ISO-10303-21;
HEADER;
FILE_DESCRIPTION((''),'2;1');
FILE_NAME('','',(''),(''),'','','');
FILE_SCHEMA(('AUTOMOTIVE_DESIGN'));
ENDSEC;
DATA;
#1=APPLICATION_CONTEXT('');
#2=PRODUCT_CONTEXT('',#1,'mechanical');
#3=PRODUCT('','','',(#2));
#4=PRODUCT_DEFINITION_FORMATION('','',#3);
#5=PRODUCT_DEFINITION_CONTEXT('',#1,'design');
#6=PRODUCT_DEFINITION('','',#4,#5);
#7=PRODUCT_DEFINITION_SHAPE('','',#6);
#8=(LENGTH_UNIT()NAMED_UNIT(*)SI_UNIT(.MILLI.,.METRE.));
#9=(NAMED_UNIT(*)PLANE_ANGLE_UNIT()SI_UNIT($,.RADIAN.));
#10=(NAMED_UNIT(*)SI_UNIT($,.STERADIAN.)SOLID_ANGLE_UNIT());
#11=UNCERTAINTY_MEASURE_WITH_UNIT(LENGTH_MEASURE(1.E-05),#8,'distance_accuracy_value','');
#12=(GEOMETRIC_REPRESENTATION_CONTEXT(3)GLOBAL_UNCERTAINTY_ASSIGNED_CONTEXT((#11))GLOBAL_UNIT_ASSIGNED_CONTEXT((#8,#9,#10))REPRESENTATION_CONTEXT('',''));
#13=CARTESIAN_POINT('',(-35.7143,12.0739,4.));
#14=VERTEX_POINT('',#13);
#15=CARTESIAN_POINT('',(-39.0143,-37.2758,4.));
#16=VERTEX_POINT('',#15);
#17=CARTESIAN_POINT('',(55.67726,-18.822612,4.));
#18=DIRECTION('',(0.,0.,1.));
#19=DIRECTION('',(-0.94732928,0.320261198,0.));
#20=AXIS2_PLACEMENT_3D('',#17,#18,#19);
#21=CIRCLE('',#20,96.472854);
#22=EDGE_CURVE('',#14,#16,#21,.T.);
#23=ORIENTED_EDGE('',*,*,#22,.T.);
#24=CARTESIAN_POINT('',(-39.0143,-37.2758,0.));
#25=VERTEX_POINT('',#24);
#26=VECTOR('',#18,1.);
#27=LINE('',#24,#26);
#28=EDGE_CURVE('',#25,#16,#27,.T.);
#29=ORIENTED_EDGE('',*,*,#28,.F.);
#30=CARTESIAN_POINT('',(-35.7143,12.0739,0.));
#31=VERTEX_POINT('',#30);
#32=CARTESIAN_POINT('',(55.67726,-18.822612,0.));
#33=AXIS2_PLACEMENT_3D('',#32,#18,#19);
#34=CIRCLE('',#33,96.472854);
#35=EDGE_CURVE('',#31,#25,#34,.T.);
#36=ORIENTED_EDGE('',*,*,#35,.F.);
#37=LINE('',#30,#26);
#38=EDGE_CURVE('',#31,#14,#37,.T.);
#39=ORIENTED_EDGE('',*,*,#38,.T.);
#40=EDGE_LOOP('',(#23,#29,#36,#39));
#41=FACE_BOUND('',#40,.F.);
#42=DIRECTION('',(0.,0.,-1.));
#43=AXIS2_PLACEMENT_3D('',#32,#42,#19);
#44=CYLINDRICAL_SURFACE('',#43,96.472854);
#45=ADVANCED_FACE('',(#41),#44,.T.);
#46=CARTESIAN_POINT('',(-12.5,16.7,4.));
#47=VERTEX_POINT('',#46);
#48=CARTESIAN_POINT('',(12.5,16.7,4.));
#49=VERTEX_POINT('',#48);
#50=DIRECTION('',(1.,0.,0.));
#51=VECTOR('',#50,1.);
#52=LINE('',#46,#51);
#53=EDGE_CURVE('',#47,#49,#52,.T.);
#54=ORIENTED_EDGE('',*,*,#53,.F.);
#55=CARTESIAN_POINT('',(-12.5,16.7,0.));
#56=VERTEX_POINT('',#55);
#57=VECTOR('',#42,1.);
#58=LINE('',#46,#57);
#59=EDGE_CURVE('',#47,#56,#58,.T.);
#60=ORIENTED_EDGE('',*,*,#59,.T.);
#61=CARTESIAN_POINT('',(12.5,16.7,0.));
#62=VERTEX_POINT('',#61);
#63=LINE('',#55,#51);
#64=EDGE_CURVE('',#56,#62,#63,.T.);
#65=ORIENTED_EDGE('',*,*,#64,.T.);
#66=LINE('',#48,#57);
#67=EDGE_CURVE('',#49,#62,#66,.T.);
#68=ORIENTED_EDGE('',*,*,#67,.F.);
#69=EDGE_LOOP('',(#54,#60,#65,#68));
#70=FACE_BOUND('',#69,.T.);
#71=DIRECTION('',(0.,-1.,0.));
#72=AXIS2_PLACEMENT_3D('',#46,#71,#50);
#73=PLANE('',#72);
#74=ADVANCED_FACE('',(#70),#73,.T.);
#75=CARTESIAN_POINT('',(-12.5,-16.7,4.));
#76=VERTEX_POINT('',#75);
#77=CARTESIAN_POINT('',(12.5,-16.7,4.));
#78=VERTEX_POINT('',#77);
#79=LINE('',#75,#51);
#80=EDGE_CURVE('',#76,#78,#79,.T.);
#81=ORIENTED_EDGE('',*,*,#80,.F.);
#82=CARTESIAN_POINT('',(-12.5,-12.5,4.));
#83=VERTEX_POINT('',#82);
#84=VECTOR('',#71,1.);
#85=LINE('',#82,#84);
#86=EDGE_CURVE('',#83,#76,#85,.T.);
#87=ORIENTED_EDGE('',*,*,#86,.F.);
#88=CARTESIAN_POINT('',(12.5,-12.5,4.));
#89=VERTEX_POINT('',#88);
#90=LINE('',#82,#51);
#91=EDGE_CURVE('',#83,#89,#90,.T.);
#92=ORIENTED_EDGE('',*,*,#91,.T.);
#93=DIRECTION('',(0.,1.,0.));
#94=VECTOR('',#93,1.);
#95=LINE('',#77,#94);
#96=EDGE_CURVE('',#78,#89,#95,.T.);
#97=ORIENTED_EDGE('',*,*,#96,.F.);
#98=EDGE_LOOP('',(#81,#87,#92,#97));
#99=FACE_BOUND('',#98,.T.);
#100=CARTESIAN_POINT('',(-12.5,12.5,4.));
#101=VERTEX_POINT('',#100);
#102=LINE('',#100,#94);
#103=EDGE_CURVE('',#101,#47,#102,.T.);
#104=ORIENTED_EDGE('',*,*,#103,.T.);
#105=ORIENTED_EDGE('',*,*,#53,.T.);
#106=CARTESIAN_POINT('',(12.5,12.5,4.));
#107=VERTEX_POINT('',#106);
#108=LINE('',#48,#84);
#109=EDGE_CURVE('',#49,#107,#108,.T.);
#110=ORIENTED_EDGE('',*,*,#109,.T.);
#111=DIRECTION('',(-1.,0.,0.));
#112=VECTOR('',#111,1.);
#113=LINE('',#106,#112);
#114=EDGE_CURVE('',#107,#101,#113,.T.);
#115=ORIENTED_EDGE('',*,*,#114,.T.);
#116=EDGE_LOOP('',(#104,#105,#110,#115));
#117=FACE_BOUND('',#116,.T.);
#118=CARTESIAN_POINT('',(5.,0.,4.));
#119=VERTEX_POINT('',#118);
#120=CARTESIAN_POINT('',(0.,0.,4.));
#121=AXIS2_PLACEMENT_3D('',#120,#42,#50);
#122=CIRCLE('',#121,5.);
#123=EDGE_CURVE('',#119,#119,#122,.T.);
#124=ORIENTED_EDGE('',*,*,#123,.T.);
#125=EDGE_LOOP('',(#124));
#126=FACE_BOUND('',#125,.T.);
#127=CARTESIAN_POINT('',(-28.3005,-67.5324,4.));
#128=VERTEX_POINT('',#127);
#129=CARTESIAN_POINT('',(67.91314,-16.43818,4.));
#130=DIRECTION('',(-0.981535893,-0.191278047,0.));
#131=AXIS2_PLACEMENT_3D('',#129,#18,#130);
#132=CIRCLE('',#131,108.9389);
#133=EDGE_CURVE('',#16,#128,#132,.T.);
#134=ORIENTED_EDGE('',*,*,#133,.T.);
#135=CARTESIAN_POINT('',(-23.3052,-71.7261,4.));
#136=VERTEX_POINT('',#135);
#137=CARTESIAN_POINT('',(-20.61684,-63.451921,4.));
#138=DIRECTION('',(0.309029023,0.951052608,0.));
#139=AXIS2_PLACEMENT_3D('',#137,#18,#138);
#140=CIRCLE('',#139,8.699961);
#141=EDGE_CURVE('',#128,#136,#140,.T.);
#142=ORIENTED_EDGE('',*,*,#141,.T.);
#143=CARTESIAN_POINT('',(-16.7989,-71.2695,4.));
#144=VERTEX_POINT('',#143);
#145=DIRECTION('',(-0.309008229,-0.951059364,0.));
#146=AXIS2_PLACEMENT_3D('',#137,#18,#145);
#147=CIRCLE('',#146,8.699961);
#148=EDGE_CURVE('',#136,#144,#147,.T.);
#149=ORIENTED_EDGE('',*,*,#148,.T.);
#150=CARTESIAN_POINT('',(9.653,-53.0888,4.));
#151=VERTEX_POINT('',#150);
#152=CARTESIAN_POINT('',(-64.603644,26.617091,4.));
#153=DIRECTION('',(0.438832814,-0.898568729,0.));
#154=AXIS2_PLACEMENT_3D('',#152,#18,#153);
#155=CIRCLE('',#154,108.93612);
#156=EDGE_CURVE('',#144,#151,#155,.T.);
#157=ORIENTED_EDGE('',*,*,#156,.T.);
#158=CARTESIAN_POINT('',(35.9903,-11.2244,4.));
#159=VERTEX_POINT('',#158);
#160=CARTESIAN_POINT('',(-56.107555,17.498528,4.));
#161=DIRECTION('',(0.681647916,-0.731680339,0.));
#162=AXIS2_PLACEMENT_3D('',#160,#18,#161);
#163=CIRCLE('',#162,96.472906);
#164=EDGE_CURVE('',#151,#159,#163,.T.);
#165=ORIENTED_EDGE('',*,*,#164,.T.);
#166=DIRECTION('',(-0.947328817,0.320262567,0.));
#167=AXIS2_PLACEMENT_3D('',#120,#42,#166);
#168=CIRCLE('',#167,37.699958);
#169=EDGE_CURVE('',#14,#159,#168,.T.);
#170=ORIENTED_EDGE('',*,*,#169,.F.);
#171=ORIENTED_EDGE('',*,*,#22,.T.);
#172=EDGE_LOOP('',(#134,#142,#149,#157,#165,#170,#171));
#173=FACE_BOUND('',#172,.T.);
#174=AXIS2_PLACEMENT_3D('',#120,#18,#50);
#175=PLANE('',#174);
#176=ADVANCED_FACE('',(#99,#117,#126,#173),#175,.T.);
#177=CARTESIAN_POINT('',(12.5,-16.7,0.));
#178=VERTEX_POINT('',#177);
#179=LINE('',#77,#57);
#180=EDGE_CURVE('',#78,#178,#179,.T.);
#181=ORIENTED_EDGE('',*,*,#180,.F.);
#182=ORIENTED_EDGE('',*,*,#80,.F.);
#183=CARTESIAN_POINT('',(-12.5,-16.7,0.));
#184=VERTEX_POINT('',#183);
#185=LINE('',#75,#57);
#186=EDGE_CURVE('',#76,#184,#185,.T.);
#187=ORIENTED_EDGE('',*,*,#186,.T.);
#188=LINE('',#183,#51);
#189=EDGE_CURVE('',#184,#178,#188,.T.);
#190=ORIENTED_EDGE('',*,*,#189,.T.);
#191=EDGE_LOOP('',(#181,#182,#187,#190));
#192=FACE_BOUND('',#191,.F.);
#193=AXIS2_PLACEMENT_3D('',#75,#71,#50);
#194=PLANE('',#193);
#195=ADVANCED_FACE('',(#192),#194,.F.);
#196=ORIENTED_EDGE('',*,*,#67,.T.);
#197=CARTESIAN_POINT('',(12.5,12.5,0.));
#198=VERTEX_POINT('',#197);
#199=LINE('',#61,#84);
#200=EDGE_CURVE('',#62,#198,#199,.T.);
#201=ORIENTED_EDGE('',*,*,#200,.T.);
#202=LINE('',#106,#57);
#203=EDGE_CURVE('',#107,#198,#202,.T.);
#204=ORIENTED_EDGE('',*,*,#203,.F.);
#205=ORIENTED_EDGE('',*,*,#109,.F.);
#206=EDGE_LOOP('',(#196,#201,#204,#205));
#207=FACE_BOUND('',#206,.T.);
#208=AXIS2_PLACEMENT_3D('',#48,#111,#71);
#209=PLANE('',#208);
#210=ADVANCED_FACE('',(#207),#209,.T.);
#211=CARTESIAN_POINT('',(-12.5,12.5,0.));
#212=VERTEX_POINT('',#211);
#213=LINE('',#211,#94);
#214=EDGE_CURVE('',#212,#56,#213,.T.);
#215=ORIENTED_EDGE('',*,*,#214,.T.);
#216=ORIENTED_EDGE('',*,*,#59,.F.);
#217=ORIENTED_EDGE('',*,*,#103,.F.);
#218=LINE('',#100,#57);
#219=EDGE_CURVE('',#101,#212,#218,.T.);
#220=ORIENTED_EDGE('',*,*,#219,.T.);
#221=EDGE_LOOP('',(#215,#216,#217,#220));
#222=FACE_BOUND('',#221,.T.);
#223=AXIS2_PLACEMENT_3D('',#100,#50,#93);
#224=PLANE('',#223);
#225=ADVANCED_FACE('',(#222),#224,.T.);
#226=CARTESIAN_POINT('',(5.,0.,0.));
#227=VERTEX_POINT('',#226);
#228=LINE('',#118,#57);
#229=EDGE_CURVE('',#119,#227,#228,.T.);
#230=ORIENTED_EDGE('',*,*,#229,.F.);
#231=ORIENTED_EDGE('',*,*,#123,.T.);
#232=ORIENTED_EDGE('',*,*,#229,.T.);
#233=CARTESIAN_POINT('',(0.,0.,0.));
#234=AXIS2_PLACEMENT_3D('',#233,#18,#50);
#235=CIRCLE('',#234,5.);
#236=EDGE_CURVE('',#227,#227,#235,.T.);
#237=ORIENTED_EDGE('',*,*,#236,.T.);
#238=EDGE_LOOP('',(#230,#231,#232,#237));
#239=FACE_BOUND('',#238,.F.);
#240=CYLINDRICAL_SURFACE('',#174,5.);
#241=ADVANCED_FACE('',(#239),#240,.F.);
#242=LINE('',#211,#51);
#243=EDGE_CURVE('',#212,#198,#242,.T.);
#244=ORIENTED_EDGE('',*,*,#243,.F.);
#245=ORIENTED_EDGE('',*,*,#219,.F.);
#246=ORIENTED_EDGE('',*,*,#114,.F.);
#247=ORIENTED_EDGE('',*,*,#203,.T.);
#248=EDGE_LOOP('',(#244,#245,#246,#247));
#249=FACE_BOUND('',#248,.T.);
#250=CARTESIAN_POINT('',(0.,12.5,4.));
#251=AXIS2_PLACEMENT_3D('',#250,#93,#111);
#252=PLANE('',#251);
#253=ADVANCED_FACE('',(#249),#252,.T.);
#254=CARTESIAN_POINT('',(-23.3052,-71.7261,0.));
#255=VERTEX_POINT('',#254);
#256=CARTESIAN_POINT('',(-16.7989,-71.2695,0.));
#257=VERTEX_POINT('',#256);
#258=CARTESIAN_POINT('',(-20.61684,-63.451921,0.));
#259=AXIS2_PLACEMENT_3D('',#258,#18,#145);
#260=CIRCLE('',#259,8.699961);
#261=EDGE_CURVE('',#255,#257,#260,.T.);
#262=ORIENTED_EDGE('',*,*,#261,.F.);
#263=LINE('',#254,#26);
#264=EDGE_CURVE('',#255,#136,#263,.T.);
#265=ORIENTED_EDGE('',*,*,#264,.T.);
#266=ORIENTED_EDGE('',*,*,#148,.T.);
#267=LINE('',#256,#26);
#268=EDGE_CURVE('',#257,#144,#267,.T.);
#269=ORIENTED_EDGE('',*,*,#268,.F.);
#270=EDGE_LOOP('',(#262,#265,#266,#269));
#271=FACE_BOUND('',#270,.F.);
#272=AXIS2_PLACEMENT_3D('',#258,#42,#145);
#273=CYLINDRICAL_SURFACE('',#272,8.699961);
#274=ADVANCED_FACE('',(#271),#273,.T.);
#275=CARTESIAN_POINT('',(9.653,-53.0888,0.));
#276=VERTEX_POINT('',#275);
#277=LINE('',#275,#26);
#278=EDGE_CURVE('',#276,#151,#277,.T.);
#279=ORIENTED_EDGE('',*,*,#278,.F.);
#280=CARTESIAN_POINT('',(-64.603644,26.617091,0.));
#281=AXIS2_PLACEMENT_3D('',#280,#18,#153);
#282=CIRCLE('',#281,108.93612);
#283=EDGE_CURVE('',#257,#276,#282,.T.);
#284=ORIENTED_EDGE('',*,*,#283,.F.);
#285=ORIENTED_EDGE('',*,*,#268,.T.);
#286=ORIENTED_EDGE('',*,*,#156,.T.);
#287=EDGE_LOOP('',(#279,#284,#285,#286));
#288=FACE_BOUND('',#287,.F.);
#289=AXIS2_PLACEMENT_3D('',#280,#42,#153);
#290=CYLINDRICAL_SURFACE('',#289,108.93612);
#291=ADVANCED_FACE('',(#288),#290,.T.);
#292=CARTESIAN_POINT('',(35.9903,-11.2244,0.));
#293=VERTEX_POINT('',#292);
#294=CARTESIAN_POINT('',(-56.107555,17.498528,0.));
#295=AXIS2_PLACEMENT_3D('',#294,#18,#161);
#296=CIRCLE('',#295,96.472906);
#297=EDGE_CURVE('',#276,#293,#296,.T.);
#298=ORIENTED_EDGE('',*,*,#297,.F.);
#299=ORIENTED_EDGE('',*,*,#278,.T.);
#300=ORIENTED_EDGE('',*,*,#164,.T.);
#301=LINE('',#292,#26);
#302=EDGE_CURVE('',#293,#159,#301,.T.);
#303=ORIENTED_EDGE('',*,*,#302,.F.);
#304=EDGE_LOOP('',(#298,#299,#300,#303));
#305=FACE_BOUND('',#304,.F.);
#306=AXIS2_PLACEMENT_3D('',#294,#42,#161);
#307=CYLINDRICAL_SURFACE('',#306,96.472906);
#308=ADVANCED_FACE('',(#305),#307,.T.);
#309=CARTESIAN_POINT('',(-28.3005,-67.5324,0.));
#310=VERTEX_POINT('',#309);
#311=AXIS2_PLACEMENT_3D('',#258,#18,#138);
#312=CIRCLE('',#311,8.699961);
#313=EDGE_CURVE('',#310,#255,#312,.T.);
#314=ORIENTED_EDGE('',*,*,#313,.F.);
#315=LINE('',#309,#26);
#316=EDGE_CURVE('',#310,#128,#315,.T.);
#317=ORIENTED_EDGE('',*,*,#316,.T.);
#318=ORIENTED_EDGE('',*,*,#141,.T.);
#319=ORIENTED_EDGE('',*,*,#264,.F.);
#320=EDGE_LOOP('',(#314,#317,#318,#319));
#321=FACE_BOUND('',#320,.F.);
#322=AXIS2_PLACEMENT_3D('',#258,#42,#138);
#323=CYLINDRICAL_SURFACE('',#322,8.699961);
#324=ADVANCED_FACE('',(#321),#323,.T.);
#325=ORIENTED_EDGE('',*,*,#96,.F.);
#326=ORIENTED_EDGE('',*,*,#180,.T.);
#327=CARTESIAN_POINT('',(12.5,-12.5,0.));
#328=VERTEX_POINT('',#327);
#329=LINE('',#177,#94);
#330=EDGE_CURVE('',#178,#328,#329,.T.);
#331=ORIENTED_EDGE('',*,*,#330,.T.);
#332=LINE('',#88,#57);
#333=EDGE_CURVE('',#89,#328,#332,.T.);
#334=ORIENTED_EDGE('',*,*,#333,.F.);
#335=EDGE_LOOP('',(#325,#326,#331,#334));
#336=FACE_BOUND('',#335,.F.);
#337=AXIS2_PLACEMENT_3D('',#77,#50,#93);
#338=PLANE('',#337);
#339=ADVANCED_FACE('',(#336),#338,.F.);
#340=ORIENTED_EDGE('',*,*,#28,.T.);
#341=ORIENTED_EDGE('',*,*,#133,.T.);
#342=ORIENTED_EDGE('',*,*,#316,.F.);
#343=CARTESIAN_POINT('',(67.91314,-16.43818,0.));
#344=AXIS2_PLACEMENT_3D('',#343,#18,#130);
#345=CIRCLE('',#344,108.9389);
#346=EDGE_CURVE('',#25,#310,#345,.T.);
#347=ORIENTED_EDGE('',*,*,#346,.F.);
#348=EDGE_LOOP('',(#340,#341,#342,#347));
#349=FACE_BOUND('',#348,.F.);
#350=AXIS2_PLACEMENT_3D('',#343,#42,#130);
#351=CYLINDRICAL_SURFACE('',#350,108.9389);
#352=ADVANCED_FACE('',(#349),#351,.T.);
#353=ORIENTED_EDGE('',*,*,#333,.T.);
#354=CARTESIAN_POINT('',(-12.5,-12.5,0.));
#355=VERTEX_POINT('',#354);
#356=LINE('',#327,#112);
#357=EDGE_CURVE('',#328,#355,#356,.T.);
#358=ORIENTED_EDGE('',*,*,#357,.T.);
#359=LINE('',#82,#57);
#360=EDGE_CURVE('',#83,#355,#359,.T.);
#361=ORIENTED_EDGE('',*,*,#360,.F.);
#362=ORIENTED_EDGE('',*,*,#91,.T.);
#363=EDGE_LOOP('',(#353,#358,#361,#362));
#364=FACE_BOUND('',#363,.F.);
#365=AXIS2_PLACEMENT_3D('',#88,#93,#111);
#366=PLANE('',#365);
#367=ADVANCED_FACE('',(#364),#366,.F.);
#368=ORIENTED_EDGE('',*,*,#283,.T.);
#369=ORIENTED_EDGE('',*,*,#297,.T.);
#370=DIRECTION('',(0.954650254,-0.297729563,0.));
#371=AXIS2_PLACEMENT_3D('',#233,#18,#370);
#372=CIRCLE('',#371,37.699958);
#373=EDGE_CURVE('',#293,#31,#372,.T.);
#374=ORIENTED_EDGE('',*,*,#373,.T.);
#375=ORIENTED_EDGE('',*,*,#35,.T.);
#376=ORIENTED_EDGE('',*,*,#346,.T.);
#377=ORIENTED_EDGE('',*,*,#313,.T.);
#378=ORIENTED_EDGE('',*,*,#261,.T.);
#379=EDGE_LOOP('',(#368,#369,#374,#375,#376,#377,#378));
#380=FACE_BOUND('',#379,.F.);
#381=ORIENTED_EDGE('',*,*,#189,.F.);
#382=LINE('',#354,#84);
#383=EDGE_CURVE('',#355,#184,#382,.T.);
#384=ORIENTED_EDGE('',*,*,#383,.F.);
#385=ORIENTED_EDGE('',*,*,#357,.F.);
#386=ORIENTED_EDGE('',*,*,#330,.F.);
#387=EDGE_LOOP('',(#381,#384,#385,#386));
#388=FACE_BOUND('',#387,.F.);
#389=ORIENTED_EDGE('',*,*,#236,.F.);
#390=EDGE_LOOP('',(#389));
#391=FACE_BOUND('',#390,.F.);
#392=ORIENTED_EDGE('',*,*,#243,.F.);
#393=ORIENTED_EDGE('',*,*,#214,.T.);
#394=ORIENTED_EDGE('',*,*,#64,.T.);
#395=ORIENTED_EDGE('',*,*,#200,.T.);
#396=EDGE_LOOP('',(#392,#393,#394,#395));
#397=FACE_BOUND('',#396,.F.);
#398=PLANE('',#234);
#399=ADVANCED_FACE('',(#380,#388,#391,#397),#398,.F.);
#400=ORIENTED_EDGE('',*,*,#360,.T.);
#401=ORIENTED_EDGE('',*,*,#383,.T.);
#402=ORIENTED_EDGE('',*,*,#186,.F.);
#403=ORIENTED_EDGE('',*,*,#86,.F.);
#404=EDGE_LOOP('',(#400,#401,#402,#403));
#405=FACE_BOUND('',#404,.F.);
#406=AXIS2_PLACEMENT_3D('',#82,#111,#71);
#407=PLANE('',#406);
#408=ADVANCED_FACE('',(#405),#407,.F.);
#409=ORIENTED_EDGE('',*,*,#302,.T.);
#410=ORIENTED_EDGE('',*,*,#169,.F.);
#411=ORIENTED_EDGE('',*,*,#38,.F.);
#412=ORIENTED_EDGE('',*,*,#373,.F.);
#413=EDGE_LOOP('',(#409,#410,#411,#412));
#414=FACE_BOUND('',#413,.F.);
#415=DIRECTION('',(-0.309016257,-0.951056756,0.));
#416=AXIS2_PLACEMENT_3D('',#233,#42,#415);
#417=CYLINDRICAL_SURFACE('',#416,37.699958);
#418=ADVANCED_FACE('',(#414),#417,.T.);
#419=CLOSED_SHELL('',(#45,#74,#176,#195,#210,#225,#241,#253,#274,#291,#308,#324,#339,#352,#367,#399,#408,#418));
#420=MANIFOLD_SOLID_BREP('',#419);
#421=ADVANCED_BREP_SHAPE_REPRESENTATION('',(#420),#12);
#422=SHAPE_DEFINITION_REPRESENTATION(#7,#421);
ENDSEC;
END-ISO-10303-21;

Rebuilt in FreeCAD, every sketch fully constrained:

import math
import FreeCAD as App
import Part
import Sketcher
from FreeCAD import Vector

doc = App.newDocument("Part")
body = doc.addObject("PartDesign::Body", "Body")

# Sketch on XY plane
sketch1 = body.newObject("Sketcher::SketchObject", "Sketch")
sketch1.AttachmentSupport = (doc.getObject("XY_Plane"), [""])
sketch1.MapMode = "FlatFace"
sketch1.addGeometry([
    Part.ArcOfCircle(Part.Circle(Vector(0, 0, 0), Vector(0, 0, 1), 37.699958), math.radians(-17.321286), math.radians(161.321195)),  # 0
    Part.ArcOfCircle(Part.Circle(Vector(55.6772, -18.8226, 0), Vector(0, 0, 1), 96.472794), math.radians(161.321274), math.radians(191.027422)),  # 1
    Part.ArcOfCircle(Part.Circle(Vector(67.9138, -16.438, 0), Vector(0, 0, 1), 108.939582), math.radians(-168.972594), math.radians(-152.029558)),  # 2
    Part.ArcOfCircle(Part.Circle(Vector(-20.6168, -63.452, 0), Vector(0, 0, 1), 8.700024), math.radians(-152.029631), math.radians(-107.999887)),  # 3
    Part.ArcOfCircle(Part.Circle(Vector(-20.6168, -63.452, 0), Vector(0, 0, 1), 8.700024), math.radians(-107.999887), math.radians(-63.970105)),  # 4
    Part.ArcOfCircle(Part.Circle(Vector(-64.603644, 26.617091, 0), Vector(0, 0, 1), 108.93612), math.radians(-63.970566), math.radians(-47.027042)),  # 5
    Part.ArcOfCircle(Part.Circle(Vector(-56.1074, 17.4984, 0), Vector(0, 0, 1), 96.472706), math.radians(-47.027464), math.radians(-17.321298)),  # 6
], False)
sketch1.addConstraint([
    Sketcher.Constraint("Coincident", 0, 2, 1, 1),
    Sketcher.Constraint("Coincident", 1, 2, 2, 1),
    Sketcher.Constraint("Coincident", 2, 2, 3, 1),
    Sketcher.Constraint("Coincident", 3, 2, 4, 1),
    Sketcher.Constraint("Coincident", 4, 2, 5, 1),
    Sketcher.Constraint("Coincident", 5, 2, 6, 1),
    Sketcher.Constraint("Coincident", 6, 2, 0, 1),
    Sketcher.Constraint("Coincident", 0, 3, -1, 1),
    Sketcher.Constraint("Coincident", 4, 3, 3, 3),
    Sketcher.Constraint("Radius", 0, 37.7),
    Sketcher.Constraint("Radius", 3, 8.7),
    Sketcher.Constraint("Radius", 5, 108.936),
    Sketcher.Constraint("Radius", 1, 96.4728),
    Sketcher.Constraint("Radius", 2, 108.9396),
    Sketcher.Constraint("Radius", 6, 96.4727),
    Sketcher.Constraint("DistanceX", 1, 2, 0, 2, 3.3),
    Sketcher.Constraint("DistanceY", 2, 3, -1, 1, 16.438),
    Sketcher.Constraint("DistanceY", 3, 3, -1, 1, 63.452),
    Sketcher.Constraint("DistanceY", -1, 1, 5, 3, 26.617),
    Sketcher.Constraint("DistanceY", -1, 1, 0, 2, 12.074),
    Sketcher.Constraint("DistanceX", 4, 2, -1, 1, 16.799),
    Sketcher.Constraint("DistanceX", -1, 1, 5, 2, 9.653),
    Sketcher.Constraint("DistanceX", 3, 3, 1, 3, 76.294),
    Sketcher.Constraint("DistanceX", 1, 2, 3, 2, 15.709),
    Sketcher.Constraint("DistanceX", 6, 2, 1, 3, 19.687),
    Sketcher.Constraint("DistanceX", 2, 2, -1, 1, 28.3005),
])
pad1 = body.newObject("PartDesign::Pad", "Pad")
pad1.Profile = sketch1
pad1.Length = 4

# Sketch on XY plane
sketch2 = body.newObject("Sketcher::SketchObject", "Sketch001")
sketch2.AttachmentSupport = (doc.getObject("XY_Plane"), [""])
sketch2.MapMode = "FlatFace"
sketch2.AttachmentOffset = App.Placement(Vector(0, 0, 4), App.Rotation())
sketch2.addGeometry([
    Part.Circle(Vector(0, 0, 0), Vector(0, 0, 1), 5),  # 0
    Part.LineSegment(Vector(-12.5, 12.5, 0), Vector(12.5, 12.5, 0)),  # 1
    Part.LineSegment(Vector(12.5, 12.5, 0), Vector(12.5, 16.7, 0)),  # 2
    Part.LineSegment(Vector(12.5, 16.7, 0), Vector(-12.5, 16.7, 0)),  # 3
    Part.LineSegment(Vector(-12.5, 16.7, 0), Vector(-12.5, 12.5, 0)),  # 4
    Part.LineSegment(Vector(12.5, -12.5, 0), Vector(-12.5, -12.5, 0)),  # 5
    Part.LineSegment(Vector(-12.5, -12.5, 0), Vector(-12.5, -16.7, 0)),  # 6
    Part.LineSegment(Vector(-12.5, -16.7, 0), Vector(12.5, -16.7, 0)),  # 7
    Part.LineSegment(Vector(12.5, -16.7, 0), Vector(12.5, -12.5, 0)),  # 8
], False)
sketch2.addConstraint([
    Sketcher.Constraint("Coincident", 1, 2, 2, 1),
    Sketcher.Constraint("Coincident", 2, 2, 3, 1),
    Sketcher.Constraint("Coincident", 3, 2, 4, 1),
    Sketcher.Constraint("Coincident", 4, 2, 1, 1),
    Sketcher.Constraint("Coincident", 5, 2, 6, 1),
    Sketcher.Constraint("Coincident", 6, 2, 7, 1),
    Sketcher.Constraint("Coincident", 7, 2, 8, 1),
    Sketcher.Constraint("Coincident", 8, 2, 5, 1),
    Sketcher.Constraint("Horizontal", 1),
    Sketcher.Constraint("Vertical", 2),
    Sketcher.Constraint("Horizontal", 3),
    Sketcher.Constraint("Vertical", 4),
    Sketcher.Constraint("Horizontal", 5),
    Sketcher.Constraint("Vertical", 6),
    Sketcher.Constraint("Horizontal", 7),
    Sketcher.Constraint("Vertical", 8),
    Sketcher.Constraint("Coincident", 0, 3, -1, 1),
    Sketcher.Constraint("Symmetric", 1, 2, 5, 2, -1, 1),
    Sketcher.Constraint("Symmetric", 3, 2, 7, 2, -1, 1),
    Sketcher.Constraint("Vertical", 4, 2, 5, 2),
    Sketcher.Constraint("Diameter", 0, 10.0),
    Sketcher.Constraint("DistanceX", 1, 1, 1, 2, 25.0),
    Sketcher.Constraint("DistanceY", 2, 1, 2, 2, 4.2),
    Sketcher.Constraint("DistanceY", 5, 2, 4, 2, 25.0),
])
pocket1 = body.newObject("PartDesign::Pocket", "Pocket")
pocket1.Profile = sketch2
pocket1.Length = 4

doc.recompute()
